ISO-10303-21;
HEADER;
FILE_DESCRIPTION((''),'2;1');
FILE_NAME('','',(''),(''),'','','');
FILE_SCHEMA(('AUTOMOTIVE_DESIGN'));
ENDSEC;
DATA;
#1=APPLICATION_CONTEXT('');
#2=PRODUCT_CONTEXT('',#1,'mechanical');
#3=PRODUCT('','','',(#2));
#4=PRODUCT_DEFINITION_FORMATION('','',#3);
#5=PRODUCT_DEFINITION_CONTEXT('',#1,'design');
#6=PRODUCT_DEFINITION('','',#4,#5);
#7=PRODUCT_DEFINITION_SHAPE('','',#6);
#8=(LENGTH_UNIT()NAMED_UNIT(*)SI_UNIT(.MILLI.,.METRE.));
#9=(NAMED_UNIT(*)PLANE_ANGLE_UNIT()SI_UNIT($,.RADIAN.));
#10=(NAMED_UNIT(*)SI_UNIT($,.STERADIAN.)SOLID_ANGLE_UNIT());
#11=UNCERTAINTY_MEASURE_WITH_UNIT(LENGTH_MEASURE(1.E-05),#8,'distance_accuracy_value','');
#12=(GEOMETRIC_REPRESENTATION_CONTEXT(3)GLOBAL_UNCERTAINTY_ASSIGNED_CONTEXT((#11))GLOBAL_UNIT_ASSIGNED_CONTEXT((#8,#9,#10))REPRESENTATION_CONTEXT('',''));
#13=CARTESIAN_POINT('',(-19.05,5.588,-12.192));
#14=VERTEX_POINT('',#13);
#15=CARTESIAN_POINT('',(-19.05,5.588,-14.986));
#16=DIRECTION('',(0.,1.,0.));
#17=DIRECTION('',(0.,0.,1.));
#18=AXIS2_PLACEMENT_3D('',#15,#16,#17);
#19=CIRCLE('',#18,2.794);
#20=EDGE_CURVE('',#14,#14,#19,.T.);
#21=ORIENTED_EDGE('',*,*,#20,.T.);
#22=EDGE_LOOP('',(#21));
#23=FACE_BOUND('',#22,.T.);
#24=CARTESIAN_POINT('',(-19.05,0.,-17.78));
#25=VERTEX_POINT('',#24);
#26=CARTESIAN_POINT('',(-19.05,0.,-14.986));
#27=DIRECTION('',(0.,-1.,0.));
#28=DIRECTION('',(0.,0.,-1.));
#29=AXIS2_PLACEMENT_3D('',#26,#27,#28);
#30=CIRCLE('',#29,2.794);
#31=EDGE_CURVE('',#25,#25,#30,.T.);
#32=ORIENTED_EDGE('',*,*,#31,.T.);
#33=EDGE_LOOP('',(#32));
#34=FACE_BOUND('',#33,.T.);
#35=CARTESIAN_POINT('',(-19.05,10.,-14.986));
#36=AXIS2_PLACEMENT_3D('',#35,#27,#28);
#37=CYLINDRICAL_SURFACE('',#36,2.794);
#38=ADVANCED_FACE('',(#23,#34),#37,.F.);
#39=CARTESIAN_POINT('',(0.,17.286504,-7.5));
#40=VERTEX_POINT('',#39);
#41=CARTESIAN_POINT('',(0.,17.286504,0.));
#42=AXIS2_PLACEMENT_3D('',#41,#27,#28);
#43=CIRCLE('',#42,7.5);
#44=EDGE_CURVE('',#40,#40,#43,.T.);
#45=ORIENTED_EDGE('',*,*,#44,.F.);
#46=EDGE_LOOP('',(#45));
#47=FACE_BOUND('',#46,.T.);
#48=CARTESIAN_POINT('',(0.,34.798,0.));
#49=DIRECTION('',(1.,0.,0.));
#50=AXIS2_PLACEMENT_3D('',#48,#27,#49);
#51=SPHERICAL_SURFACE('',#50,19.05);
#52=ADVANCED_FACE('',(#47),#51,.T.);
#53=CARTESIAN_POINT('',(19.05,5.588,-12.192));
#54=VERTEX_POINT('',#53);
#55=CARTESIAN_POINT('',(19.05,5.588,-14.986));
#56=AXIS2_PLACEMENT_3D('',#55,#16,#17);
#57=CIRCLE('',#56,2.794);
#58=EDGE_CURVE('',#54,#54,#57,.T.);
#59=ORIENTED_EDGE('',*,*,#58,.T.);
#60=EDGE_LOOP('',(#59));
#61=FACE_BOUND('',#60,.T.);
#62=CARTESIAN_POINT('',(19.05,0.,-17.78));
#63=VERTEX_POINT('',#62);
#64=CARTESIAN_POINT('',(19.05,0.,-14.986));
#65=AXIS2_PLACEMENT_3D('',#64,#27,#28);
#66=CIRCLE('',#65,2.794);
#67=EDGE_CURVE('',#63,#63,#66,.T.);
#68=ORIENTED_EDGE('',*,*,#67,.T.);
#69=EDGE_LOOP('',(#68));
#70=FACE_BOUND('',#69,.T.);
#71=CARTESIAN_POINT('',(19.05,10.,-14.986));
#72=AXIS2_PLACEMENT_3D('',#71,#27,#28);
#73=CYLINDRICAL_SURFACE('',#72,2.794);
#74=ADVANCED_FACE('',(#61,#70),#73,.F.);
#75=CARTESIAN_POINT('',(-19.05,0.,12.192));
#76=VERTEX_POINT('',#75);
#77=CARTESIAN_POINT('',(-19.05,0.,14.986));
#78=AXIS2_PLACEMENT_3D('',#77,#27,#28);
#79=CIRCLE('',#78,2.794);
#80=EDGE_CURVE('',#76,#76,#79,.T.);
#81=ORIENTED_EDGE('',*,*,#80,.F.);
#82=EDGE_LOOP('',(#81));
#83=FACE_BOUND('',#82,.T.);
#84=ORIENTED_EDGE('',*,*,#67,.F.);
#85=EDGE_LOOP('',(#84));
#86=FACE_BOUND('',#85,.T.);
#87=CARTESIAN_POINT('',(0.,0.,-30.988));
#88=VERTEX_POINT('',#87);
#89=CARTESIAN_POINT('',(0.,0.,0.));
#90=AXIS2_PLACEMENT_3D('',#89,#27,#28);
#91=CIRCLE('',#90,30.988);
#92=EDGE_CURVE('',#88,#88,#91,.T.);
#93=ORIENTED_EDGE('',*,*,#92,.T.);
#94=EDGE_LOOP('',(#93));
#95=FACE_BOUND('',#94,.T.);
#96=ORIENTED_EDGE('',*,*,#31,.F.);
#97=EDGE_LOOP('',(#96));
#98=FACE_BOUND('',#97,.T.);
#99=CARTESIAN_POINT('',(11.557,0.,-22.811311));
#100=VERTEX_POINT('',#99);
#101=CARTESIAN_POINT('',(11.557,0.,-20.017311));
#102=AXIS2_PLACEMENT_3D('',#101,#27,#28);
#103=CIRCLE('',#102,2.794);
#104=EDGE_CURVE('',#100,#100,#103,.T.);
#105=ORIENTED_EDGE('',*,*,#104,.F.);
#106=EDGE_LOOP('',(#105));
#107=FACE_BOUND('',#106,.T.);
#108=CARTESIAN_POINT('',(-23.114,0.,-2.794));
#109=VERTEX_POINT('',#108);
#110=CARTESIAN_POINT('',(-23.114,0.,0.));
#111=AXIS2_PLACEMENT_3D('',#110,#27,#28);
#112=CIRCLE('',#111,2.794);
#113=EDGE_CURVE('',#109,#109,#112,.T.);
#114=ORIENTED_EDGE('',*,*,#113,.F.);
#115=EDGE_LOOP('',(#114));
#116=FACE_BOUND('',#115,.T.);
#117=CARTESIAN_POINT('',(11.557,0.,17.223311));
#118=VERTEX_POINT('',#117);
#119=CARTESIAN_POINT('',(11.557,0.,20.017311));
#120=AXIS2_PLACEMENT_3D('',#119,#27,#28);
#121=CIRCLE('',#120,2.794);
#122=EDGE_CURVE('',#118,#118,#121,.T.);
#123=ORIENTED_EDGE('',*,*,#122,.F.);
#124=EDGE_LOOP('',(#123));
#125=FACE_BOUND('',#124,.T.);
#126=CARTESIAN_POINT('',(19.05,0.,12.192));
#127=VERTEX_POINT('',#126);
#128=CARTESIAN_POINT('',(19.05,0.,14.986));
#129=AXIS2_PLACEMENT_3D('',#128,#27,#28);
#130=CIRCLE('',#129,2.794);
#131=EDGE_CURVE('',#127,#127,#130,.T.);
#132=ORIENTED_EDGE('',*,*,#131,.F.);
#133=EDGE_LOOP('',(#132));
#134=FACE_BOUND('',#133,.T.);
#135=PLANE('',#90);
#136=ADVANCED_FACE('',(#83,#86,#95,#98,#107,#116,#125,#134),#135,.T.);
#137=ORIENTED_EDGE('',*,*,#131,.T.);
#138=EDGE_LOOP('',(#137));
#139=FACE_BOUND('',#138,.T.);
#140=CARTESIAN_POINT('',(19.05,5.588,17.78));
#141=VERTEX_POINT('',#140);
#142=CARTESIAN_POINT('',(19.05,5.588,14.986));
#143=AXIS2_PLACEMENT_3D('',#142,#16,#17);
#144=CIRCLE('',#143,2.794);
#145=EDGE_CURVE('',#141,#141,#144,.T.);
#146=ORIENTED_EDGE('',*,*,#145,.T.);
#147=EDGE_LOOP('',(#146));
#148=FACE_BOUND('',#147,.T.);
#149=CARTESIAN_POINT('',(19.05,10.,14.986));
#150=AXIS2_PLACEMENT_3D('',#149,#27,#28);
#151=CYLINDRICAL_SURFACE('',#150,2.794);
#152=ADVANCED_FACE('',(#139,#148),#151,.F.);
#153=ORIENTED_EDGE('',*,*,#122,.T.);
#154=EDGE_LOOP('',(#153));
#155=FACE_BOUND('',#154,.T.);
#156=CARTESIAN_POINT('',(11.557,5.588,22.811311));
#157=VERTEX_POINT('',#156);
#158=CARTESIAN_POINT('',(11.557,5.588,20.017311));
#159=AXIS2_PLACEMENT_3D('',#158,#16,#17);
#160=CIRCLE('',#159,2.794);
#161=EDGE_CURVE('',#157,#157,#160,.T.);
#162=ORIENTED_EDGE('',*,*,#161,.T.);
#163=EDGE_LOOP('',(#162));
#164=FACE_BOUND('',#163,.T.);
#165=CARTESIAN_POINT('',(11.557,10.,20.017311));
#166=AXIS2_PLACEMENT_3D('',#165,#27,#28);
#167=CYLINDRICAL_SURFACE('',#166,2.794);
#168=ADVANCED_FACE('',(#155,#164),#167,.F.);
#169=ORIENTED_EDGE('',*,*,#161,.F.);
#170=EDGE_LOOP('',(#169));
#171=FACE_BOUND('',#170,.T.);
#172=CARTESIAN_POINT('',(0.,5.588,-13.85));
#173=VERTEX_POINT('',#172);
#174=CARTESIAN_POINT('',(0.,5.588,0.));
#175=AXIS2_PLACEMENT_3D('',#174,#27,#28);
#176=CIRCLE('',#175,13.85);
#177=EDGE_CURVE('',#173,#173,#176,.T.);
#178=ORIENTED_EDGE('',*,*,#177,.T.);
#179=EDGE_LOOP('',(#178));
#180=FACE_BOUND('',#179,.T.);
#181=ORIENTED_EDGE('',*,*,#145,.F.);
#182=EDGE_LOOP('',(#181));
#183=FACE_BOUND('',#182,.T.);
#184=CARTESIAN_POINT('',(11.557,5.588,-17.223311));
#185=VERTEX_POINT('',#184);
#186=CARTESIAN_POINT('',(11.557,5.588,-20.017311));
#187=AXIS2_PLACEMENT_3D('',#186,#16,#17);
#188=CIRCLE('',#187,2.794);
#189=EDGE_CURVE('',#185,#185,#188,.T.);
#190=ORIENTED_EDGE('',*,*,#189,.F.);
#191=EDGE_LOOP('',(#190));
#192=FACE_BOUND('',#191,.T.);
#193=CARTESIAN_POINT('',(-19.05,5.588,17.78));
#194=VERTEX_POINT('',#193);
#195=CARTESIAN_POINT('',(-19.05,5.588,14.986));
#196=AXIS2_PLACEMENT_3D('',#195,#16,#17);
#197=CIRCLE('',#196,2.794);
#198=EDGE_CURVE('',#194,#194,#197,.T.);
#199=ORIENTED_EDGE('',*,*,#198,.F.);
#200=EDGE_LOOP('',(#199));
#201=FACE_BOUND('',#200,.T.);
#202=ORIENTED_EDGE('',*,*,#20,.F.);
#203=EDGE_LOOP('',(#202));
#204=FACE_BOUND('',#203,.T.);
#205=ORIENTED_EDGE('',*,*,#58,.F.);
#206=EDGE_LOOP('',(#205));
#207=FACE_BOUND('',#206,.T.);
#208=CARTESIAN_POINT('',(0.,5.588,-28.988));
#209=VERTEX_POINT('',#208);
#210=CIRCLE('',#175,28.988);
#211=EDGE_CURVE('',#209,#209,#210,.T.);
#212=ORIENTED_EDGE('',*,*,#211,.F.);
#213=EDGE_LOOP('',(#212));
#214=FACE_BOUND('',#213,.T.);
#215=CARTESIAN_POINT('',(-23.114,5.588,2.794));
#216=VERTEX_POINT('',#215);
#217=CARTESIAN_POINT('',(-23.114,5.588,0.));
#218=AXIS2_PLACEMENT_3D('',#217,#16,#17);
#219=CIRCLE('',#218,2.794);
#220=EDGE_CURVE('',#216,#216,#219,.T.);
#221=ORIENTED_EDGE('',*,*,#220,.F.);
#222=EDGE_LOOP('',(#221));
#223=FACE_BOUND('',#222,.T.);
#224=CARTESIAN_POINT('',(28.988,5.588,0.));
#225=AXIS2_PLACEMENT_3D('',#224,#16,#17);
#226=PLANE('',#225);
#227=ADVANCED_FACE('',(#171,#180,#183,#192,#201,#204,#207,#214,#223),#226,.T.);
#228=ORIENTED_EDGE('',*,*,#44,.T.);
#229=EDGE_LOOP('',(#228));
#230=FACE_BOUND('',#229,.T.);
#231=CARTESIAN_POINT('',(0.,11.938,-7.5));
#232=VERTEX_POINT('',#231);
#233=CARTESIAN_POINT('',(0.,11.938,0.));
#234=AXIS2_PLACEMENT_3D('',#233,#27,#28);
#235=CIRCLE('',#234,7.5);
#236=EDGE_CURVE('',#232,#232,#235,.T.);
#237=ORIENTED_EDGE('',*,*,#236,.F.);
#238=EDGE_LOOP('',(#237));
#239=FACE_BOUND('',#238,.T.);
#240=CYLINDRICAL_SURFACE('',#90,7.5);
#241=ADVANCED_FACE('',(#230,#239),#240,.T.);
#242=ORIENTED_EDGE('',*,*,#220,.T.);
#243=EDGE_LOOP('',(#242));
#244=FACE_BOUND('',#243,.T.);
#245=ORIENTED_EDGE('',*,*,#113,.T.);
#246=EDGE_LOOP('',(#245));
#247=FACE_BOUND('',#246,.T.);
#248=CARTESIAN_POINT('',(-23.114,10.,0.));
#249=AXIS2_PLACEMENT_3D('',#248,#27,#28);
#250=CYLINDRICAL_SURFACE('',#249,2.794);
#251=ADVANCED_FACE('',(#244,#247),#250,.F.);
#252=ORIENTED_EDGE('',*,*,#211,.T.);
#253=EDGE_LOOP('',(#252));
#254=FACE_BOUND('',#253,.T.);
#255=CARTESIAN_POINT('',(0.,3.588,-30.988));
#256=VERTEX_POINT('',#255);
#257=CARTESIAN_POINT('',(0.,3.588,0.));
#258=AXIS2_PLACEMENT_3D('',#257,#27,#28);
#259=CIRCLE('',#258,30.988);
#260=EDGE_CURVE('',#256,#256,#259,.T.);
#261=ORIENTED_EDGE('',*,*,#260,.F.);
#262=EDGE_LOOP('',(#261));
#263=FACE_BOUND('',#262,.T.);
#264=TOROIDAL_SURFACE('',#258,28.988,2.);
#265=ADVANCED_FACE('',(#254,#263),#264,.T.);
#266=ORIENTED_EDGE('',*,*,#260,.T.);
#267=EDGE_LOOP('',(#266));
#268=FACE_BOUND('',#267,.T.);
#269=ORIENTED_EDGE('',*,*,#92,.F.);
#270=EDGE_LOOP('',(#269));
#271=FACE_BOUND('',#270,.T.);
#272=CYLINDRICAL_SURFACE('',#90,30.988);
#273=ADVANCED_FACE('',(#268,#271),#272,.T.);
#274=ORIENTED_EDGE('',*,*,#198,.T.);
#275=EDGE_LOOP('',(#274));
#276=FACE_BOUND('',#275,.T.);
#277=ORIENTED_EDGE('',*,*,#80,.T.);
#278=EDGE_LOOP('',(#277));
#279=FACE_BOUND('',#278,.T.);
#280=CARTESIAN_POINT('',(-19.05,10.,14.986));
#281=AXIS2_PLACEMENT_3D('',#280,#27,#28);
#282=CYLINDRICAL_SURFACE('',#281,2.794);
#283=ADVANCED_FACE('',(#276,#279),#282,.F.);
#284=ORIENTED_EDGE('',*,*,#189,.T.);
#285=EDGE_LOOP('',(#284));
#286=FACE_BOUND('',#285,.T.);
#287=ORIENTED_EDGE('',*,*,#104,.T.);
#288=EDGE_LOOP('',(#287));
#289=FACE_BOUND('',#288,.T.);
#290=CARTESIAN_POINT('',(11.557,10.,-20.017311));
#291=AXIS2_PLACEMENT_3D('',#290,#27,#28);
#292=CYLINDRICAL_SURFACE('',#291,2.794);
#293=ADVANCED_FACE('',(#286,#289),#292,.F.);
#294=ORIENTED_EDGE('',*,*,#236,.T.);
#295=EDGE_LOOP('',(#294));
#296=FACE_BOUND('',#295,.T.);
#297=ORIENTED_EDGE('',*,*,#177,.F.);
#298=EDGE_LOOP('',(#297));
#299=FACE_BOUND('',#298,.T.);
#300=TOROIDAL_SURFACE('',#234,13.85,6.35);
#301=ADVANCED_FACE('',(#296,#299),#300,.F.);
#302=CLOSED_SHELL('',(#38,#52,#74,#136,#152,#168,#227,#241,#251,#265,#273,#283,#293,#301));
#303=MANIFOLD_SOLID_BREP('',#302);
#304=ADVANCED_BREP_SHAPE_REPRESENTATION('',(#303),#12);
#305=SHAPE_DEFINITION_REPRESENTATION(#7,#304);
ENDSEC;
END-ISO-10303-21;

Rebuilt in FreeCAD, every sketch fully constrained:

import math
import FreeCAD as App
import Part
import Sketcher

V = App.Vector
Q = App.Units.Quantity

doc = App.newDocument("Part")
params = doc.addObject("Spreadsheet::Sheet", "Params")
for row, (alias, value) in enumerate([
    ("sketch1_radius", "0.25 in"),
    ("sketch1_radius2", "0.75 in"),
    ("sketch1_width", "1.22 in"),
    ("sketch1_height", "2.12 in"),
    ("revolution_angle", "360 deg"),
    ("sketch2_diameter", "0.22 in"),
    ("pocket1_length", "10 mm"),
], start=1):
    params.set(f"A{row}", alias)
    params.set(f"B{row}", "=" + value)
    params.setAlias(f"B{row}", alias)

body = doc.addObject("PartDesign::Body", "Body")

# Sketch on XY plane
sketch1 = doc.addObject("Sketcher::SketchObject", "Sketch")
body.addObject(sketch1)
sketch1.AttachmentSupport = (doc.XY_Plane, [""])
sketch1.MapMode = "FlatFace"
sketch1.addGeometry([
    Part.LineSegment(V(0, 0, 0), V(31, 0, 0)),  # 0
    Part.LineSegment(V(31, 0, 0), V(31, 3.6, 0)),  # 1
    Part.ArcOfCircle(Part.Circle(V(29, 3.6, 0), V(0, 0, 1), 2), math.radians(0), math.radians(90)),  # 2
    Part.LineSegment(V(29, 5.6, 0), V(13.8, 5.6, 0)),  # 3
    Part.ArcOfCircle(Part.Circle(V(13.8, 11.9, 0), V(0, 0, 1), 6.3), math.radians(180), math.radians(270)),  # 4
    Part.LineSegment(V(7.5, 11.9, 0), V(7.5, 17.3, 0)),  # 5
    Part.ArcOfCircle(Part.Circle(V(0, 34.8, 0), V(0, 0, 1), 19.1), math.radians(-67), math.radians(90)),  # 6
    Part.LineSegment(V(0, 53.8, 0), V(0, 0, 0)),  # 7
], False)
sketch1.addConstraint([
    Sketcher.Constraint("Coincident", 0, 2, 1, 1),
    Sketcher.Constraint("Tangent", 1, 2, 2, 1),
    Sketcher.Constraint("Tangent", 2, 2, 3, 1),
    Sketcher.Constraint("Tangent", 3, 2, 4, 2),
    Sketcher.Constraint("Tangent", 4, 1, 5, 1),
    Sketcher.Constraint("Coincident", 5, 2, 6, 1),
    Sketcher.Constraint("Coincident", 6, 2, 7, 1),
    Sketcher.Constraint("Coincident", 7, 2, 0, 1),
    Sketcher.Constraint("Horizontal", 0),
    Sketcher.Constraint("Vertical", 1),
    Sketcher.Constraint("Horizontal", 3),
    Sketcher.Constraint("Vertical", 5),
    Sketcher.Constraint("Vertical", 7),
    Sketcher.Constraint("Coincident", 7, 2, -1, 1),
    Sketcher.Constraint("PointOnObject", 6, 3, -2),
    Sketcher.Constraint("Radius", 4, Q("0.25 in")),
    Sketcher.Constraint("Radius", 6, Q("0.75 in")),
    Sketcher.Constraint("DistanceX", 0, 1, 0, 2, Q("1.22 in")),
    Sketcher.Constraint("DistanceY", 7, 2, 7, 1, Q("2.12 in")),
    Sketcher.Constraint("DistanceY", 4, 3, 6, 3, Q("0.9 in")),
    Sketcher.Constraint("Radius", 2, Q("2 mm")),
    Sketcher.Constraint("DistanceX", 3, 2, 3, 1, Q("15.138 mm")),
])
sketch1.setExpression("Constraints[15]", "Params.sketch1_radius")
sketch1.setExpression("Constraints[16]", "Params.sketch1_radius2")
sketch1.setExpression("Constraints[17]", "Params.sketch1_width")
sketch1.setExpression("Constraints[18]", "Params.sketch1_height")
revolution = doc.addObject("PartDesign::Revolution", "Revolution")
body.addObject(revolution)
revolution.Profile = sketch1
revolution.ReferenceAxis = (sketch1, ["V_Axis"])
revolution.setExpression("Angle", "Params.revolution_angle")

# Sketch on XZ plane
sketch2 = doc.addObject("Sketcher::SketchObject", "Sketch001")
body.addObject(sketch2)
sketch2.AttachmentSupport = (doc.XZ_Plane, [""])
sketch2.MapMode = "FlatFace"
sketch2.addGeometry([
    Part.Circle(V(-23.1, 0, 0), V(0, 0, 1), 2.8),  # 0
    Part.Circle(V(11.6, 20, 0), V(0, 0, 1), 2.8),  # 1
    Part.Circle(V(11.6, -20, 0), V(0, 0, 1), 2.8),  # 2
    Part.Circle(V(-19.1, 15, 0), V(0, 0, 1), 2.8),  # 3
    Part.Circle(V(19.1, 15, 0), V(0, 0, 1), 2.8),  # 4
    Part.Circle(V(19.1, -15, 0), V(0, 0, 1), 2.8),  # 5
    Part.Circle(V(-19.1, -15, 0), V(0, 0, 1), 2.8),  # 6
], False)
sketch2.addConstraint([
    Sketcher.Constraint("Equal", 0, 1),
    Sketcher.Constraint("Equal", 1, 2),
    Sketcher.Constraint("Equal", 2, 3),
    Sketcher.Constraint("Equal", 3, 4),
    Sketcher.Constraint("Equal", 4, 5),
    Sketcher.Constraint("Equal", 5, 6),
    Sketcher.Constraint("Symmetric", 3, 3, 5, 3, -1, 1),
    Sketcher.Constraint("Symmetric", 4, 3, 6, 3, -1, 1),
    Sketcher.Constraint("Symmetric", 3, 3, 4, 3, -2),
    Sketcher.Constraint("Symmetric", 1, 3, 2, 3, -1),
    Sketcher.Constraint("PointOnObject", 0, 3, -1),
    Sketcher.Constraint("Diameter", 0, Q("0.22 in")),
    Sketcher.Constraint("DistanceX", 3, 3, 4, 3, Q("1.5 in")),
    Sketcher.Constraint("DistanceX", 0, 3, -1, 1, Q("0.91 in")),
    Sketcher.Constraint("DistanceY", -1, 1, 3, 3, Q("0.59 in")),
    Sketcher.Constraint("DistanceX", -1, 1, 1, 3, Q("0.455 in")),
    Sketcher.Constraint("DistanceY", -1, 1, 1, 3, Q("20.017311 mm")),
])
sketch2.setExpression("Constraints[11]", "Params.sketch2_diameter")
pocket1 = doc.addObject("PartDesign::Pocket", "Pocket")
body.addObject(pocket1)
pocket1.Profile = sketch2
pocket1.setExpression("Length", "Params.pocket1_length")

doc.recompute()
